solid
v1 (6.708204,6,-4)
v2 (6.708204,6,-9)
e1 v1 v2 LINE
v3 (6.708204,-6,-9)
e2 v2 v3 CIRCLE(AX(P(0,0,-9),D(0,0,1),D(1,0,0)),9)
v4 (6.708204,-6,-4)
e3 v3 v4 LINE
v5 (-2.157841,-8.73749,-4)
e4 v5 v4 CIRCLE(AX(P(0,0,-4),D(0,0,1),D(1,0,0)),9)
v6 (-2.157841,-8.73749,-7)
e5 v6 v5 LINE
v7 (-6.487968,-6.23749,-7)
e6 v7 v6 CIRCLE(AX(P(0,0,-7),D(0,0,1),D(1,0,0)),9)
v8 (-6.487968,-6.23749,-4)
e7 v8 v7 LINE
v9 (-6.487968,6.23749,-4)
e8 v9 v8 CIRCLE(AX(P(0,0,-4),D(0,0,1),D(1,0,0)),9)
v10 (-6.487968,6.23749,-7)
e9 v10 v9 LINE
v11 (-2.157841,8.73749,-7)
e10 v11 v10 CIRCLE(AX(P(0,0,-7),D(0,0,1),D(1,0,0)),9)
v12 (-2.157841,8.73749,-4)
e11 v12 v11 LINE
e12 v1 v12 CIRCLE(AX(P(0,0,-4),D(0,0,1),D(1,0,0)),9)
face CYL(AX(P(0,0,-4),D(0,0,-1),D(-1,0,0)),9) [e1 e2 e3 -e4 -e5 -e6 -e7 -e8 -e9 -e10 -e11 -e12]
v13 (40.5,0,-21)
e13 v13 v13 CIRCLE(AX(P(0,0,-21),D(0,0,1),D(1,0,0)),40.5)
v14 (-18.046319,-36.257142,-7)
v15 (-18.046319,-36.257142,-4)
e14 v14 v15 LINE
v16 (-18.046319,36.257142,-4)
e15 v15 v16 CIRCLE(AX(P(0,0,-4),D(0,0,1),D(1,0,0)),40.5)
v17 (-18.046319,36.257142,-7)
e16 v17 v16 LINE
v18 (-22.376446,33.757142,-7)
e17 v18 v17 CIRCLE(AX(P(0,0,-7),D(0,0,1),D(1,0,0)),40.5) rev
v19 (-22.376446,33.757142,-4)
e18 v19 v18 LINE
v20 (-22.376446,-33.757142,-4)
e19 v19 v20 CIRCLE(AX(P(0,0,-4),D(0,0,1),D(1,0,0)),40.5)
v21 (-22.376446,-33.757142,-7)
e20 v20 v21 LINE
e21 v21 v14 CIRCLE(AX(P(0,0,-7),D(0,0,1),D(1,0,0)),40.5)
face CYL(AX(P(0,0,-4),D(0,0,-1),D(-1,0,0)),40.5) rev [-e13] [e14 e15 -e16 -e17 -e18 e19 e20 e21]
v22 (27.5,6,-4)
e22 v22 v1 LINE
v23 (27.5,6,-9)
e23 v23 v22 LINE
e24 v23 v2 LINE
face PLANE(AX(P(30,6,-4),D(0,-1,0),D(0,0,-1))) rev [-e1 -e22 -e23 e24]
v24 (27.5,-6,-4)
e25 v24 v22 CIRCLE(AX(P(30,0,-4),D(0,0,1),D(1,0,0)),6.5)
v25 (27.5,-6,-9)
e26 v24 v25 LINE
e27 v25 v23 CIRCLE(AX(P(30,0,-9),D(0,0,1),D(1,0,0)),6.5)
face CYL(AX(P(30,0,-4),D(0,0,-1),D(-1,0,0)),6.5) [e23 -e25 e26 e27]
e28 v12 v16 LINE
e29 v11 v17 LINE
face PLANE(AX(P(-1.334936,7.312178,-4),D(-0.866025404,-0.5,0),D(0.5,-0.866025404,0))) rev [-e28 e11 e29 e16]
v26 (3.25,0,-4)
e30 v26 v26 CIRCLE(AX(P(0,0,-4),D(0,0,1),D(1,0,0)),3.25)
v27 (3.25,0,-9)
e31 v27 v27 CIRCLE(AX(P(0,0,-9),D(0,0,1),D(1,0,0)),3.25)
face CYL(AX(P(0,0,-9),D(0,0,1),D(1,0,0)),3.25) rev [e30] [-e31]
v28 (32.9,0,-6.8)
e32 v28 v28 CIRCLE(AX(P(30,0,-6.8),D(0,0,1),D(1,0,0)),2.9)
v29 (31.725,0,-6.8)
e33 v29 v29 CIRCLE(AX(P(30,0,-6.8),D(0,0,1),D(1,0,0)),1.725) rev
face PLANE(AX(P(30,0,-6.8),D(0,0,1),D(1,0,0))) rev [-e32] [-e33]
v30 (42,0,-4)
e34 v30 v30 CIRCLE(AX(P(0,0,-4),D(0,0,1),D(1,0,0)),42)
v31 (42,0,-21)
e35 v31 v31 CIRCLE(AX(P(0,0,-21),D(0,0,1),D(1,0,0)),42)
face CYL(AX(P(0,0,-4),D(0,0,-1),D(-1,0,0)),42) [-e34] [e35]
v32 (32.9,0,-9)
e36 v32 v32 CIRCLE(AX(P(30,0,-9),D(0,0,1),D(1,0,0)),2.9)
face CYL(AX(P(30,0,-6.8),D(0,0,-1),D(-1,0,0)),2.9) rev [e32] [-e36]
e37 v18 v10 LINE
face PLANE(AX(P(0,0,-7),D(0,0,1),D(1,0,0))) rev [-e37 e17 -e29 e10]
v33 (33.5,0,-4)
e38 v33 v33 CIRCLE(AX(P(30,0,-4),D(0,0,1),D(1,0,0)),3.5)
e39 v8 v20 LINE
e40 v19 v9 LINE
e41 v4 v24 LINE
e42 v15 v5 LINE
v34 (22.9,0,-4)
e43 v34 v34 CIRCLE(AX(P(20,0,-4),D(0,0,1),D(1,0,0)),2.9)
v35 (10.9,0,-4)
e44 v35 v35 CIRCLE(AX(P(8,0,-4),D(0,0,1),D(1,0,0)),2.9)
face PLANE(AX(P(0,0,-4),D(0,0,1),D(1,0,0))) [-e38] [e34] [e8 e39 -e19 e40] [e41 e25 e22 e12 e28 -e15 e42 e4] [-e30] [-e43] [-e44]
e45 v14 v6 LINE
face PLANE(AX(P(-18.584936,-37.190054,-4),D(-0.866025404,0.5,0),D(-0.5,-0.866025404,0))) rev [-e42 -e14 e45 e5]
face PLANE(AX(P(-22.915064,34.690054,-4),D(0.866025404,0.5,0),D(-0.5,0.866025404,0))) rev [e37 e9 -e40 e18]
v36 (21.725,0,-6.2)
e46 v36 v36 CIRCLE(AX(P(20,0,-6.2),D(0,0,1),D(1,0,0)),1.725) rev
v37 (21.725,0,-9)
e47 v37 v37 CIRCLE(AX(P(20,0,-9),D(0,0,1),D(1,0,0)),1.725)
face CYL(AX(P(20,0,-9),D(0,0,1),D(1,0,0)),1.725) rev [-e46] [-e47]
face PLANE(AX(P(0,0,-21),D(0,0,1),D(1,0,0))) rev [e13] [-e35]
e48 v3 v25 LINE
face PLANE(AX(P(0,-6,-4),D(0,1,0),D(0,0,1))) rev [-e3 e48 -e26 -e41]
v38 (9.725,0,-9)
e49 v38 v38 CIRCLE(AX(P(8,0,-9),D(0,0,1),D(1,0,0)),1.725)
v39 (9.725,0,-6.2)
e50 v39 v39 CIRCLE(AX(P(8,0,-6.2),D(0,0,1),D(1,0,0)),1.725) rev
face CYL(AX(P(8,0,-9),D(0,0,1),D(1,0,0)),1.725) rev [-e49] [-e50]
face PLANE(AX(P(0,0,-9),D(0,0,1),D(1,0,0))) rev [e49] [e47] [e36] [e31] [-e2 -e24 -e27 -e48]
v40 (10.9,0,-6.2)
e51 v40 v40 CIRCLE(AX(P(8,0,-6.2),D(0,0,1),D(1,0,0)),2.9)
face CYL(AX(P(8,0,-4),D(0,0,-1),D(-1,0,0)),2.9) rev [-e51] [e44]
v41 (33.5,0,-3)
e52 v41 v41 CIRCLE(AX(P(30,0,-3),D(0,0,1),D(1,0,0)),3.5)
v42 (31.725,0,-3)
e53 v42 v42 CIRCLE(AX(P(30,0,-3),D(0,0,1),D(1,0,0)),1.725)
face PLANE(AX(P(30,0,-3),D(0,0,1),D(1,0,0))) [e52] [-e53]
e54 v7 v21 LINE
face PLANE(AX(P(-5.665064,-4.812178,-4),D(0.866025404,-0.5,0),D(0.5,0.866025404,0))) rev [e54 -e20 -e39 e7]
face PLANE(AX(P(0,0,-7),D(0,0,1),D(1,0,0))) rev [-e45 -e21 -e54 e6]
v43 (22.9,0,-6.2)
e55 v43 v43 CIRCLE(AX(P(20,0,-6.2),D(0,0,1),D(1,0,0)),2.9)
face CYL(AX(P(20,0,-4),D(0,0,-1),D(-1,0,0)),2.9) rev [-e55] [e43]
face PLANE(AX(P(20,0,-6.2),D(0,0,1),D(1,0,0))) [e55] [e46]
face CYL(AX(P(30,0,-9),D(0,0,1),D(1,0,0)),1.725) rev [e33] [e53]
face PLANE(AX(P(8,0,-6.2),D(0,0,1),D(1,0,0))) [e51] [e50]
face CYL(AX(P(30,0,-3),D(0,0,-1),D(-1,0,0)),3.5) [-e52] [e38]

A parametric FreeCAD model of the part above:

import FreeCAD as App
import Part
import Sketcher

V = App.Vector
Q = App.Units.Quantity


def add_polygon(sketch, points):
    """Adds a closed chain of lines whose ends are joined by coincident constraints."""
    first, n = sketch.GeometryCount, len(points)
    for a, b in zip(points, points[1:] + points[:1]):
        sketch.addGeometry(Part.LineSegment(App.Vector(*a, 0), App.Vector(*b, 0)), False)
    for i in range(n):
        sketch.addConstraint(Sketcher.Constraint("Coincident", first + i, 2, first + (i + 1) % n, 1))

doc = App.newDocument("Part")
body = doc.addObject("PartDesign::Body", "Body")

# Sketch on XY plane
sketch1 = body.newObject("Sketcher::SketchObject", "Sketch")
sketch1.AttachmentSupport = (doc.getObject("XY_Plane"), [""])
sketch1.MapMode = "FlatFace"
sketch1.AttachmentOffset = App.Placement(V(0, 0, -9), App.Rotation())
add_polygon(sketch1, [(0, 6), (0, -6), (30, -6), (30, 6)])  # lines 0-3
sketch1.addConstraint([
    Sketcher.Constraint("Vertical", 0),
    Sketcher.Constraint("Horizontal", 1),
    Sketcher.Constraint("Vertical", 2),
    Sketcher.Constraint("Horizontal", 3),
    Sketcher.Constraint("Symmetric", 0, 2, 3, 2, -1, 1),
    Sketcher.Constraint("DistanceX", 1, 1, 1, 2, Q("30 mm")),
    Sketcher.Constraint("DistanceY", 0, 2, 0, 1, Q("12 mm")),
])
pad1 = body.newObject("PartDesign::Pad", "Pad")
pad1.Profile = sketch1
pad1.Length = 5

# Sketch on XY plane
sketch2 = body.newObject("Sketcher::SketchObject", "Sketch001")
sketch2.AttachmentSupport = (doc.getObject("XY_Plane"), [""])
sketch2.MapMode = "FlatFace"
sketch2.AttachmentOffset = App.Placement(V(0, 0, -9), App.Rotation())
sketch2.addGeometry(Part.Circle(V(0, 0, 0), V(0, 0, 1), 9), False)
sketch2.addConstraint([
    Sketcher.Constraint("Coincident", 0, 3, -1, 1),
    Sketcher.Constraint("Diameter", 0, Q("18 mm")),
])
pad2 = body.newObject("PartDesign::Pad", "Pad001")
pad2.Profile = sketch2
pad2.Length = 5

# Sketch on XY plane
sketch3 = body.newObject("Sketcher::SketchObject", "Sketch002")
sketch3.AttachmentSupport = (doc.getObject("XY_Plane"), [""])
sketch3.MapMode = "FlatFace"
sketch3.AttachmentOffset = App.Placement(V(0, 0, -9), App.Rotation())
sketch3.addGeometry(Part.Circle(V(30, 0, 0), V(0, 0, 1), 6), False)
sketch3.addConstraint([
    Sketcher.Constraint("PointOnObject", 0, 3, -1),
    Sketcher.Constraint("Diameter", 0, Q("13 mm")),
    Sketcher.Constraint("DistanceX", -1, 1, 0, 3, Q("30 mm")),
])
pad3 = body.newObject("PartDesign::Pad", "Pad002")
pad3.Profile = sketch3
pad3.Length = 5

# Sketch on XY plane
sketch4 = body.newObject("Sketcher::SketchObject", "Sketch003")
sketch4.AttachmentSupport = (doc.getObject("XY_Plane"), [""])
sketch4.MapMode = "FlatFace"
sketch4.addGeometry(Part.Circle(V(0, 0, 0), V(0, 0, 1), 3.2), False)
sketch4.addConstraint([
    Sketcher.Constraint("Coincident", 0, 3, -1, 1),
    Sketcher.Constraint("Diameter", 0, Q("6.5 mm")),
])
pocket1 = body.newObject("PartDesign::Pocket", "Pocket")
pocket1.Profile = sketch4
pocket1.Type = "ThroughAll"
pocket1.Midplane = True

# Sketch on XY plane
sketch5 = body.newObject("Sketcher::SketchObject", "Sketch004")
sketch5.AttachmentSupport = (doc.getObject("XY_Plane"), [""])
sketch5.MapMode = "FlatFace"
sketch5.addGeometry([
    Part.Circle(V(8, 0, 0), V(0, 0, 1), 1.7),
    Part.Circle(V(20, 0, 0), V(0, 0, 1), 1.7),
    Part.Circle(V(30, 0, 0), V(0, 0, 1), 1.7),
], False)
sketch5.addConstraint([
    Sketcher.Constraint("Equal", 0, 1),
    Sketcher.Constraint("Equal", 1, 2),
    Sketcher.Constraint("PointOnObject", 0, 3, -1),
    Sketcher.Constraint("PointOnObject", 1, 3, -1),
    Sketcher.Constraint("PointOnObject", 2, 3, -1),
    Sketcher.Constraint("Diameter", 0, Q("3.45 mm")),
    Sketcher.Constraint("DistanceX", -1, 1, 0, 3, Q("8 mm")),
    Sketcher.Constraint("DistanceX", -1, 1, 1, 3, Q("20 mm")),
    Sketcher.Constraint("DistanceX", -1, 1, 2, 3, Q("30 mm")),
])
pocket2 = body.newObject("PartDesign::Pocket", "Pocket001")
pocket2.Profile = sketch5
pocket2.Type = "ThroughAll"
pocket2.Midplane = True

# Sketch on XY plane
sketch6 = body.newObject("Sketcher::SketchObject", "Sketch005")
sketch6.AttachmentSupport = (doc.getObject("XY_Plane"), [""])
sketch6.MapMode = "FlatFace"
sketch6.AttachmentOffset = App.Placement(V(0, 0, -6.2), App.Rotation())
sketch6.addGeometry(Part.Circle(V(8, 0, 0), V(0, 0, 1), 2.9), False)
sketch6.addConstraint([
    Sketcher.Constraint("PointOnObject", 0, 3, -1),
    Sketcher.Constraint("Diameter", 0, Q("5.8 mm")),
    Sketcher.Constraint("DistanceX", -1, 1, 0, 3, Q("8 mm")),
])
pocket3 = body.newObject("PartDesign::Pocket", "Pocket002")
pocket3.Profile = sketch6
pocket3.Length = 2.2
pocket3.Reversed = True

# Sketch on XY plane
sketch7 = body.newObject("Sketcher::SketchObject", "Sketch006")
sketch7.AttachmentSupport = (doc.getObject("XY_Plane"), [""])
sketch7.MapMode = "FlatFace"
sketch7.AttachmentOffset = App.Placement(V(0, 0, -6.2), App.Rotation())
sketch7.addGeometry(Part.Circle(V(20, 0, 0), V(0, 0, 1), 2.9), False)
sketch7.addConstraint([
    Sketcher.Constraint("PointOnObject", 0, 3, -1),
    Sketcher.Constraint("Diameter", 0, Q("5.8 mm")),
    Sketcher.Constraint("DistanceX", -1, 1, 0, 3, Q("20 mm")),
])
pocket4 = body.newObject("PartDesign::Pocket", "Pocket003")
pocket4.Profile = sketch7
pocket4.Length = 2.2
pocket4.Reversed = True

# Sketch on XY plane
sketch8 = body.newObject("Sketcher::SketchObject", "Sketch007")
sketch8.AttachmentSupport = (doc.getObject("XY_Plane"), [""])
sketch8.MapMode = "FlatFace"
sketch8.AttachmentOffset = App.Placement(V(0, 0, -9), App.Rotation())
sketch8.addGeometry(Part.Circle(V(30, 0, 0), V(0, 0, 1), 2.9), False)
sketch8.addConstraint([
    Sketcher.Constraint("PointOnObject", 0, 3, -1),
    Sketcher.Constraint("Diameter", 0, Q("5.8 mm")),
    Sketcher.Constraint("DistanceX", -1, 1, 0, 3, Q("30 mm")),
])
pocket5 = body.newObject("PartDesign::Pocket", "Pocket004")
pocket5.Profile = sketch8
pocket5.Length = 2.2
pocket5.Reversed = True

# Sketch on XY plane
sketch9 = body.newObject("Sketcher::SketchObject", "Sketch008")
sketch9.AttachmentSupport = (doc.getObject("XY_Plane"), [""])
sketch9.MapMode = "FlatFace"
sketch9.AttachmentOffset = App.Placement(V(0, 0, -4), App.Rotation())
sketch9.addGeometry(Part.Circle(V(30, 0, 0), V(0, 0, 1), 3.5), False)
sketch9.addConstraint([
    Sketcher.Constraint("PointOnObject", 0, 3, -1),
    Sketcher.Constraint("Diameter", 0, Q("7 mm")),
    Sketcher.Constraint("DistanceX", -1, 1, 0, 3, Q("30 mm")),
])
pad4 = body.newObject("PartDesign::Pad", "Pad003")
pad4.Profile = sketch9
pad4.Length = 1

# Sketch on XY plane
sketch10 = body.newObject("Sketcher::SketchObject", "Sketch009")
sketch10.AttachmentSupport = (doc.getObject("XY_Plane"), [""])
sketch10.MapMode = "FlatFace"
sketch10.addGeometry(Part.Circle(V(30, 0, 0), V(0, 0, 1), 1.7), False)
sketch10.addConstraint([
    Sketcher.Constraint("PointOnObject", 0, 3, -1),
    Sketcher.Constraint("Diameter", 0, Q("3.45 mm")),
    Sketcher.Constraint("DistanceX", -1, 1, 0, 3, Q("30 mm")),
])
pocket6 = body.newObject("PartDesign::Pocket", "Pocket005")
pocket6.Profile = sketch10
pocket6.Type = "ThroughAll"
pocket6.Midplane = True
body2 = doc.addObject("PartDesign::Body", "Body001")

# Sketch on XY plane
sketch11 = body2.newObject("Sketcher::SketchObject", "Sketch010")
sketch11.AttachmentSupport = (doc.getObject("XY_Plane001"), [""])
sketch11.MapMode = "FlatFace"
sketch11.AttachmentOffset = App.Placement(V(0, 0, -21), App.Rotation())
sketch11.addGeometry([
    Part.Circle(V(0, 0, 0), V(0, 0, 1), 42),
    Part.Circle(V(0, 0, 0), V(0, 0, 1), 40),
], False)
sketch11.addConstraint([
    Sketcher.Constraint("Coincident", 0, 3, -1, 1),
    Sketcher.Constraint("Coincident", 1, 3, -1, 1),
    Sketcher.Constraint("Diameter", 0, Q("84 mm")),
    Sketcher.Constraint("Diameter", 1, Q("81 mm")),
])
pad5 = body2.newObject("PartDesign::Pad", "Pad004")
pad5.Profile = sketch11
pad5.Length = 17
body.AllowCompound = True
doc.recompute()

boolean = body.newObject("PartDesign::Boolean", "Boolean")
boolean.Type = "Fuse"
boolean.addObjects([body2])

# Sketch on XY plane
sketch12 = body.newObject("Sketcher::SketchObject", "Sketch011")
sketch12.AttachmentSupport = (doc.getObject("XY_Plane"), [""])
sketch12.MapMode = "FlatFace"
sketch12.AttachmentOffset = App.Placement(V(0, 0, -7), App.Rotation())
add_polygon(sketch12, [(-1.3, 7.3), (-18.6, 37.2), (-22.9, 34.7), (-5.7, 4.8)])  # lines 0-3
add_polygon(sketch12, [(-5.7, -4.8), (-22.9, -34.7), (-18.6, -37.2), (-1.3, -7.3)])  # lines 4-7
sketch12.addConstraint([
    Sketcher.Constraint("Symmetric", 1, 2, 4, 2, -1),
    Sketcher.Constraint("Symmetric", 0, 2, 5, 2, -1),
    Sketcher.Constraint("Symmetric", 3, 2, 6, 2, -1),
    Sketcher.Constraint("Symmetric", 2, 2, 7, 2, -1),
    Sketcher.Constraint("Perpendicular", 0, 1),
    Sketcher.Constraint("Perpendicular", 1, 2),
    Sketcher.Constraint("Perpendicular", 2, 3),
    Sketcher.Constraint("Angle", 0, Q("120 deg")),
    Sketcher.Constraint("Distance", 1, Q("5 mm")),
    Sketcher.Constraint("Distance", 0, Q("34.5 mm")),
    Sketcher.Constraint("DistanceY", 4, 2, 1, 2, Q("69.380109 mm")),
    Sketcher.Constraint("DistanceX", 0, 2, -1, 1, Q("18.584936 mm")),
])
pad6 = body.newObject("PartDesign::Pad", "Pad005")
pad6.Profile = sketch12
pad6.Length = 3

doc.recompute()
